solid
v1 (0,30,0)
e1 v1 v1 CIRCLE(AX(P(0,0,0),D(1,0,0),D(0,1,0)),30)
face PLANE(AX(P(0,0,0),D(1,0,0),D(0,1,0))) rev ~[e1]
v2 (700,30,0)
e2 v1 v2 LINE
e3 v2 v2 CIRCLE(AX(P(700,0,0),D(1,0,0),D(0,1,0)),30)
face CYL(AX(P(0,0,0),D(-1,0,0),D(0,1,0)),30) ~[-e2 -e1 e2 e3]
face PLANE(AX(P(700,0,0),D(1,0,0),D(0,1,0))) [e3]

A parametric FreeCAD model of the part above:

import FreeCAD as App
import Part
import Sketcher
from FreeCAD import Vector

doc = App.newDocument("Part")
body = doc.addObject("PartDesign::Body", "Body")

# Sketch on YZ plane
sketch1 = body.newObject("Sketcher::SketchObject", "Sketch")
sketch1.AttachmentSupport = (doc.getObject("YZ_Plane"), [""])
sketch1.MapMode = "FlatFace"
sketch1.addGeometry(Part.Circle(Vector(0, 0, 0), Vector(0, 0, 1), 30), False)
sketch1.addConstraint([
    Sketcher.Constraint("Coincident", 0, 3, -1, 1),
    Sketcher.Constraint("Diameter", 0, 60.0),
])
pad1 = body.newObject("PartDesign::Pad", "Pad")
pad1.Profile = sketch1
pad1.Length = 700

doc.recompute()
